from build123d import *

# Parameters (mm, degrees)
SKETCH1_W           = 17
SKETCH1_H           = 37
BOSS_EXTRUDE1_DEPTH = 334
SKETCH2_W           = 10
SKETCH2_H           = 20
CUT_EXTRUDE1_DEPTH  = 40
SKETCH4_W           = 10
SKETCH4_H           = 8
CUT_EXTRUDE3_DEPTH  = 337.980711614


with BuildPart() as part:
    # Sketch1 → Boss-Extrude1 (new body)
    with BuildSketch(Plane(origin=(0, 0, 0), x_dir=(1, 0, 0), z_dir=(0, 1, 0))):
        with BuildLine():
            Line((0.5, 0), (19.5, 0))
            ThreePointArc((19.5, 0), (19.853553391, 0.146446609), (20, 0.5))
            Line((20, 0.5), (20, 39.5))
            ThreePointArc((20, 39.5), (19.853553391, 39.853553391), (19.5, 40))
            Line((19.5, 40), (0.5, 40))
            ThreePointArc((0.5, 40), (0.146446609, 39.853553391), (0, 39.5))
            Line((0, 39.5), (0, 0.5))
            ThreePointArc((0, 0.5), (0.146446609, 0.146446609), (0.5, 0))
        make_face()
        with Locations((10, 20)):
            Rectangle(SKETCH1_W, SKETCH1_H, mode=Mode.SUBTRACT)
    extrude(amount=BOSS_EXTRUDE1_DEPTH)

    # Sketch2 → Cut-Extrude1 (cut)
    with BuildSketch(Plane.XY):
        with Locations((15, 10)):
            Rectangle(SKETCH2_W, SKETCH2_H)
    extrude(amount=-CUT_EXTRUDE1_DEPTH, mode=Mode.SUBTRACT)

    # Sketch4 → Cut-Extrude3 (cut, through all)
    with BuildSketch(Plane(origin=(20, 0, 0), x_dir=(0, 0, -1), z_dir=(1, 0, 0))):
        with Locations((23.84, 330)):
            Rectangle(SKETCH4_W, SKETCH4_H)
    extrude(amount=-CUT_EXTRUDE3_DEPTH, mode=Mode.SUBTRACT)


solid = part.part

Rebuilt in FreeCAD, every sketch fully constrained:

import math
import FreeCAD as App
import Part
import Sketcher

V = App.Vector

doc = App.newDocument("Part")
body = doc.addObject("PartDesign::Body", "Body")

# Sketch on XZ plane
sketch1 = body.newObject("Sketcher::SketchObject", "Sketch")
sketch1.AttachmentSupport = (doc.getObject("XZ_Plane"), [""])
sketch1.MapMode = "FlatFace"
sketch1.addGeometry([
    Part.LineSegment(V(0.5, 0, 0), V(19.5, 0, 0)),  # 0
    Part.ArcOfCircle(Part.Circle(V(19.5, -0.5, 0), V(0, 0, 1), 0.5), math.radians(0), math.radians(90)),  # 1
    Part.LineSegment(V(20, -0.5, 0), V(20, -39.5, 0)),  # 2
    Part.ArcOfCircle(Part.Circle(V(19.5, -39.5, 0), V(0, 0, 1), 0.5), math.radians(-90), math.radians(0)),  # 3
    Part.LineSegment(V(19.5, -40, 0), V(0.5, -40, 0)),  # 4
    Part.ArcOfCircle(Part.Circle(V(0.5, -39.5, 0), V(0, 0, 1), 0.5), math.radians(180), math.radians(270)),  # 5
    Part.LineSegment(V(0, -39.5, 0), V(0, -0.5, 0)),  # 6
    Part.ArcOfCircle(Part.Circle(V(0.5, -0.5, 0), V(0, 0, 1), 0.5), math.radians(90), math.radians(180)),  # 7
    Part.LineSegment(V(18.5, -1.5, 0), V(1.5, -1.5, 0)),  # 8
    Part.LineSegment(V(1.5, -1.5, 0), V(1.5, -38.5, 0)),  # 9
    Part.LineSegment(V(1.5, -38.5, 0), V(18.5, -38.5, 0)),  # 10
    Part.LineSegment(V(18.5, -38.5, 0), V(18.5, -1.5, 0)),  # 11
], False)
sketch1.addConstraint([
    Sketcher.Constraint("Tangent", 0, 2, 1, 2),
    Sketcher.Constraint("Tangent", 1, 1, 2, 1),
    Sketcher.Constraint("Tangent", 2, 2, 3, 2),
    Sketcher.Constraint("Tangent", 3, 1, 4, 1),
    Sketcher.Constraint("Tangent", 4, 2, 5, 2),
    Sketcher.Constraint("Tangent", 5, 1, 6, 1),
    Sketcher.Constraint("Tangent", 6, 2, 7, 2),
    Sketcher.Constraint("Tangent", 7, 1, 0, 1),
    Sketcher.Constraint("Coincident", 8, 2, 9, 1),
    Sketcher.Constraint("Coincident", 9, 2, 10, 1),
    Sketcher.Constraint("Coincident", 10, 2, 11, 1),
    Sketcher.Constraint("Coincident", 11, 2, 8, 1),
    Sketcher.Constraint("Horizontal", 0),
    Sketcher.Constraint("Vertical", 2),
    Sketcher.Constraint("Horizontal", 4),
    Sketcher.Constraint("Vertical", 6),
    Sketcher.Constraint("Horizontal", 8),
    Sketcher.Constraint("Vertical", 9),
    Sketcher.Constraint("Horizontal", 10),
    Sketcher.Constraint("Vertical", 11),
    Sketcher.Constraint("Equal", 1, 3),
    Sketcher.Constraint("Equal", 3, 5),
    Sketcher.Constraint("Equal", 5, 7),
    Sketcher.Constraint("PointOnObject", 0, 2, -1),
    Sketcher.Constraint("PointOnObject", 5, 1, -2),
    Sketcher.Constraint("Radius", 1, 0.5),
    Sketcher.Constraint("DistanceX", 0, 1, 0, 2, 19.0),
    Sketcher.Constraint("DistanceX", 8, 2, 8, 1, 17.0),
    Sketcher.Constraint("DistanceY", 2, 2, 2, 1, 39.0),
    Sketcher.Constraint("DistanceY", 9, 2, 9, 1, 37.0),
    Sketcher.Constraint("DistanceX", 7, 3, 8, 2, 1.0),
    Sketcher.Constraint("DistanceY", 8, 2, 7, 3, 1.0),
])
pad1 = body.newObject("PartDesign::Pad", "Pad")
pad1.Profile = sketch1
pad1.Length = 334
pad1.Reversed = True

# Sketch on XY plane
sketch2 = body.newObject("Sketcher::SketchObject", "Sketch001")
sketch2.AttachmentSupport = (doc.getObject("XY_Plane"), [""])
sketch2.MapMode = "FlatFace"
sketch2.addGeometry([
    Part.LineSegment(V(10, 20, 0), V(10, 0, 0)),
    Part.LineSegment(V(10, 0, 0), V(20, 0, 0)),
    Part.LineSegment(V(20, 0, 0), V(20, 20, 0)),
    Part.LineSegment(V(20, 20, 0), V(10, 20, 0)),
], False)
sketch2.addConstraint([
    Sketcher.Constraint("Coincident", 0, 2, 1, 1),
    Sketcher.Constraint("Coincident", 1, 2, 2, 1),
    Sketcher.Constraint("Coincident", 2, 2, 3, 1),
    Sketcher.Constraint("Coincident", 3, 2, 0, 1),
    Sketcher.Constraint("Vertical", 0),
    Sketcher.Constraint("Horizontal", 1),
    Sketcher.Constraint("Vertical", 2),
    Sketcher.Constraint("Horizontal", 3),
    Sketcher.Constraint("PointOnObject", 0, 2, -1),
    Sketcher.Constraint("DistanceX", 1, 1, 1, 2, 10.0),
    Sketcher.Constraint("DistanceY", 0, 2, 0, 1, 20.0),
    Sketcher.Constraint("DistanceX", -1, 1, 0, 2, 10.0),
])
pocket1 = body.newObject("PartDesign::Pocket", "Pocket")
pocket1.Profile = sketch2
pocket1.Length = 40

# Sketch on YZ plane
sketch3 = body.newObject("Sketcher::SketchObject", "Sketch002")
sketch3.AttachmentSupport = (doc.getObject("YZ_Plane"), [""])
sketch3.MapMode = "FlatFace"
sketch3.AttachmentOffset = App.Placement(V(0, 0, 20), App.Rotation())
sketch3.addGeometry([
    Part.LineSegment(V(334, -19, 0), V(326, -19, 0)),
    Part.LineSegment(V(326, -19, 0), V(326, -29, 0)),
    Part.LineSegment(V(326, -29, 0), V(334, -29, 0)),
    Part.LineSegment(V(334, -29, 0), V(334, -19, 0)),
], False)
sketch3.addConstraint([
    Sketcher.Constraint("Coincident", 0, 2, 1, 1),
    Sketcher.Constraint("Coincident", 1, 2, 2, 1),
    Sketcher.Constraint("Coincident", 2, 2, 3, 1),
    Sketcher.Constraint("Coincident", 3, 2, 0, 1),
    Sketcher.Constraint("Horizontal", 0),
    Sketcher.Constraint("Vertical", 1),
    Sketcher.Constraint("Horizontal", 2),
    Sketcher.Constraint("Vertical", 3),
    Sketcher.Constraint("DistanceX", 0, 2, 0, 1, 8.0),
    Sketcher.Constraint("DistanceY", 1, 2, 1, 1, 10.0),
    Sketcher.Constraint("DistanceX", -1, 1, 0, 2, 326.0),
    Sketcher.Constraint("DistanceY", 0, 2, -1, 1, 18.84),
])
pocket2 = body.newObject("PartDesign::Pocket", "Pocket001")
pocket2.Profile = sketch3
pocket2.Type = "ThroughAll"

doc.recompute()
